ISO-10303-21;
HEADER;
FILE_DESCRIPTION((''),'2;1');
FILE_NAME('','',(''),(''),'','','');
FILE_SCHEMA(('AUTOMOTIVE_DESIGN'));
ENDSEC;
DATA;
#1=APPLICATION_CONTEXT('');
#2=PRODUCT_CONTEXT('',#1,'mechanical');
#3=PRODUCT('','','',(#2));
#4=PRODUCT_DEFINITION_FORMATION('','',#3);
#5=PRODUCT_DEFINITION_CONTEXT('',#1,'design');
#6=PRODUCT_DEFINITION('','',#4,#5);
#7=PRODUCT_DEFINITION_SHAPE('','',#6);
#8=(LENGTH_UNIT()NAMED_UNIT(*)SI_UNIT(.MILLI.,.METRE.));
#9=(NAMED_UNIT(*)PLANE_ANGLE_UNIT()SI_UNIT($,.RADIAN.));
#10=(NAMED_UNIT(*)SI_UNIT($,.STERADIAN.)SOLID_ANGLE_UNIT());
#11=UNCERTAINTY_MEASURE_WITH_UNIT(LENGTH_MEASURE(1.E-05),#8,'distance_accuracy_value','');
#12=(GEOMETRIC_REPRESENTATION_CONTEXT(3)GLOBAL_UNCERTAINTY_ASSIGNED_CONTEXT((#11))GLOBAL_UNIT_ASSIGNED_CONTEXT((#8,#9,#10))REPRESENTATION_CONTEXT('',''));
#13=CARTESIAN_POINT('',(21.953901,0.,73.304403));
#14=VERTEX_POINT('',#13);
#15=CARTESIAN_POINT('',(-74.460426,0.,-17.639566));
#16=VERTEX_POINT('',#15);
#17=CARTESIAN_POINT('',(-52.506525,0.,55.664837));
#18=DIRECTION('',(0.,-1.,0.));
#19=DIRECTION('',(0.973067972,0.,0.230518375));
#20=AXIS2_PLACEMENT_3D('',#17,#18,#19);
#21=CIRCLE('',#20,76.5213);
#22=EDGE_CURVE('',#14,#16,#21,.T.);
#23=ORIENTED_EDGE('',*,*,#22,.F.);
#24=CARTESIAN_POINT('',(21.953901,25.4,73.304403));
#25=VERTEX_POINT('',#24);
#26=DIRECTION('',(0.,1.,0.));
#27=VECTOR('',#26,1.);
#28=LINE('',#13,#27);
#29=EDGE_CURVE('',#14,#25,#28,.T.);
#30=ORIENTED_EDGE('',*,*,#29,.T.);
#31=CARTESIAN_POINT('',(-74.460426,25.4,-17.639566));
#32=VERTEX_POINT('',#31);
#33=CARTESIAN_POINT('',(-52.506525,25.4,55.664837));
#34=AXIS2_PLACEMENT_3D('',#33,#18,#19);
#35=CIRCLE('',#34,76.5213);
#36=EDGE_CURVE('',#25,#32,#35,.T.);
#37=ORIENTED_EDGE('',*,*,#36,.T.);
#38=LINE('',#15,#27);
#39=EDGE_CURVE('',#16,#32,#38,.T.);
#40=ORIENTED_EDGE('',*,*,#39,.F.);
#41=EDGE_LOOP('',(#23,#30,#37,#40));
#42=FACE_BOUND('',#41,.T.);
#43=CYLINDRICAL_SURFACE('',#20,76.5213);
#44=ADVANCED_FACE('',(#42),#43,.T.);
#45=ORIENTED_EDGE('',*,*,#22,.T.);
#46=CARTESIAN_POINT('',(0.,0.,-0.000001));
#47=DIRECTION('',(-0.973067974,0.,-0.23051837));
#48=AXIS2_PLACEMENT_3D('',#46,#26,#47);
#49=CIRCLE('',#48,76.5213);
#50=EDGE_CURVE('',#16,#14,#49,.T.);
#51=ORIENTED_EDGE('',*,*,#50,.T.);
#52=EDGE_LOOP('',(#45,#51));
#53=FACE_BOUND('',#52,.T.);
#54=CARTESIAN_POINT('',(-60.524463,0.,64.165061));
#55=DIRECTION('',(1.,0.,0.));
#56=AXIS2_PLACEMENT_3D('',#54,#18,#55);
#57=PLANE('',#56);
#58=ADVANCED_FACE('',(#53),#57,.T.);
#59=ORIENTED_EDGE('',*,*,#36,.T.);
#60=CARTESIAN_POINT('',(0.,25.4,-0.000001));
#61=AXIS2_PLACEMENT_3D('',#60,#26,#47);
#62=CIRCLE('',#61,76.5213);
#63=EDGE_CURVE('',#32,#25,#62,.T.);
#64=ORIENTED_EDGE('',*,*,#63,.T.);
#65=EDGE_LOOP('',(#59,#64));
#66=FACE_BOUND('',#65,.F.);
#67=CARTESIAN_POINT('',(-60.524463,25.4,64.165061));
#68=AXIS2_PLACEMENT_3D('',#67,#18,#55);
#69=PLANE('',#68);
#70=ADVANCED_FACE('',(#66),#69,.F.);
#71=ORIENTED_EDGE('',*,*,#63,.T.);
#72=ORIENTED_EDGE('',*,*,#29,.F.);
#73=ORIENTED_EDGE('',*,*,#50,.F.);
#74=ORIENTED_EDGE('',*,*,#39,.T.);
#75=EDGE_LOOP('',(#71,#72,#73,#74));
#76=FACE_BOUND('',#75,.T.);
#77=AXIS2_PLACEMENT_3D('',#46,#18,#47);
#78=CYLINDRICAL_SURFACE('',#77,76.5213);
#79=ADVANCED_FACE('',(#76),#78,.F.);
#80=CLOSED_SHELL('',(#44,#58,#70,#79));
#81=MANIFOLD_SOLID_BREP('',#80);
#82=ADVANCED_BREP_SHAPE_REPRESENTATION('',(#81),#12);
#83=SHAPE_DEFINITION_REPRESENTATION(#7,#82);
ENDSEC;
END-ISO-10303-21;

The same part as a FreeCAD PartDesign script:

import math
import FreeCAD as App
import Part
import Sketcher
Q = App.Units.Quantity

doc = App.newDocument("Part")
body = doc.addObject("PartDesign::Body", "Body")

sketch1 = doc.addObject("Sketcher::SketchObject", "Sketch")
body.addObject(sketch1)
sketch1.AttachmentSupport = (doc.XZ_Plane, [""])
sketch1.MapMode = "FlatFace"
sketch1.addGeometry([
    Part.ArcOfCircle(Part.Circle(App.Vector(0, 0, 0), App.Vector(0, 0, 1), 77), math.radians(73), math.radians(193)),
    Part.ArcOfCircle(Part.Circle(App.Vector(-53, 56, 0), App.Vector(0, 0, 1), 77), math.radians(13), math.radians(253)),
], False)
sketch1.addConstraint([
    Sketcher.Constraint("Coincident", 0, 1, 1, 1),
    Sketcher.Constraint("Coincident", 1, 2, 0, 2),
    Sketcher.Constraint("Coincident", 0, 3, -1, 1),
    Sketcher.Constraint("Equal", 0, 1),
    Sketcher.Constraint("Radius", 0, 76.5213),
    Sketcher.Constraint("DistanceY", -1, 1, 0, 1, Q("2.8860001 in")),
    Sketcher.Constraint("DistanceY", 1, 2, 0, 1, 90.943969),
])
pad1 = doc.addObject("PartDesign::Pad", "Pad")
body.addObject(pad1)
pad1.Profile = sketch1
pad1.Length = Q("1 in")
pad1.Reversed = True

doc.recompute()
